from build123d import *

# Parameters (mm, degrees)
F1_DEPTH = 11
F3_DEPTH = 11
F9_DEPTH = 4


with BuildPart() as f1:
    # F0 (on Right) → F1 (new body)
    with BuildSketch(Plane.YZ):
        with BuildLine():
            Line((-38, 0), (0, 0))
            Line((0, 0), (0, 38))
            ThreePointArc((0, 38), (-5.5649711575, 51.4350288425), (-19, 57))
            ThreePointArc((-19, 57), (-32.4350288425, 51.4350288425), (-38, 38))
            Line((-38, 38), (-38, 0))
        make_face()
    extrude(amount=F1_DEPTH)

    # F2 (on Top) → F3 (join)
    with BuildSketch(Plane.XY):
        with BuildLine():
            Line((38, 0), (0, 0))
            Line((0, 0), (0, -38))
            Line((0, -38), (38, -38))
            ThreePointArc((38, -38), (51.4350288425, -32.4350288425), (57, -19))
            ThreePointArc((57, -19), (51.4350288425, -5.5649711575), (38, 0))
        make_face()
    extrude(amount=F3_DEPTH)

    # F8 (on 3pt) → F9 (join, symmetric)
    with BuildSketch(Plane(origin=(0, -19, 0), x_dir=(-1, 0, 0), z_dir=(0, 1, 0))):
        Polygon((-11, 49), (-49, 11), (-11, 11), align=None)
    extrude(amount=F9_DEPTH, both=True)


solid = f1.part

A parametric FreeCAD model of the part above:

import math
import FreeCAD as App
import Part
import Sketcher

V = App.Vector

doc = App.newDocument("Part")
params = doc.addObject("Spreadsheet::Sheet", "Params")
for row, (alias, value) in enumerate([
    ("sketch1_radius", "19 mm"),
    ("pad1_length", "11 mm"),
    ("sketch2_radius", "19 mm"),
    ("pad2_length", "11 mm"),
    ("sketch3_width", "38 mm"),
    ("pad3_length", "8 mm"),
], start=1):
    params.set(f"A{row}", alias)
    params.set(f"B{row}", "=" + value)
    params.setAlias(f"B{row}", alias)

body = doc.addObject("PartDesign::Body", "Body")

# Sketch on YZ plane
sketch1 = body.newObject("Sketcher::SketchObject", "Sketch")
sketch1.AttachmentSupport = (doc.getObject("YZ_Plane"), [""])
sketch1.MapMode = "FlatFace"
sketch1.addGeometry(Part.LineSegment(V(-38, 0, 0), V(0, 0, 0)), False)
sketch1.addGeometry(Part.LineSegment(V(0, 0, 0), V(0, 38, 0)), False)
sketch1.addGeometry(Part.ArcOfCircle(Part.Circle(V(-19, 38, 0), V(0, 0, 1), 19), math.radians(0), math.radians(90)), False)
sketch1.addGeometry(Part.ArcOfCircle(Part.Circle(V(-19, 38, 0), V(0, 0, 1), 19), math.radians(90), math.radians(180)), False)
sketch1.addGeometry(Part.LineSegment(V(-38, 38, 0), V(-38, 0, 0)), False)
sketch1.addConstraint(Sketcher.Constraint("Coincident", 0, 2, 1, 1))
sketch1.addConstraint(Sketcher.Constraint("Tangent", 1, 2, 2, 1))
sketch1.addConstraint(Sketcher.Constraint("Tangent", 2, 2, 3, 1))
sketch1.addConstraint(Sketcher.Constraint("Tangent", 3, 2, 4, 1))
sketch1.addConstraint(Sketcher.Constraint("Coincident", 4, 2, 0, 1))
sketch1.addConstraint(Sketcher.Constraint("Horizontal", 0))
sketch1.addConstraint(Sketcher.Constraint("Vertical", 1))
sketch1.addConstraint(Sketcher.Constraint("Vertical", 4))
sketch1.addConstraint(Sketcher.Constraint("Coincident", 0, 2, -1, 1))
sketch1.addConstraint(Sketcher.Constraint("Equal", 2, 3))
sketch1.addConstraint(Sketcher.Constraint("Vertical", 3, 3, 2, 2))
sketch1.addConstraint(Sketcher.Constraint("Equal", 0, 1))
sketch1.addConstraint(Sketcher.Constraint("Radius", 2, 19.0))
sketch1.setExpression("Constraints[12]", "Params.sketch1_radius")
pad1 = body.newObject("PartDesign::Pad", "Pad")
pad1.Profile = sketch1
pad1.setExpression("Length", "Params.pad1_length")

# Sketch on XY plane
sketch2 = body.newObject("Sketcher::SketchObject", "Sketch001")
sketch2.AttachmentSupport = (doc.getObject("XY_Plane"), [""])
sketch2.MapMode = "FlatFace"
sketch2.addGeometry(Part.LineSegment(V(38, 0, 0), V(0, 0, 0)), False)
sketch2.addGeometry(Part.LineSegment(V(0, 0, 0), V(0, -38, 0)), False)
sketch2.addGeometry(Part.LineSegment(V(0, -38, 0), V(38, -38, 0)), False)
sketch2.addGeometry(Part.ArcOfCircle(Part.Circle(V(38, -19, 0), V(0, 0, 1), 19), math.radians(-90), math.radians(0)), False)
sketch2.addGeometry(Part.ArcOfCircle(Part.Circle(V(38, -19, 0), V(0, 0, 1), 19), math.radians(0), math.radians(90)), False)
sketch2.addConstraint(Sketcher.Constraint("Coincident", 0, 2, 1, 1))
sketch2.addConstraint(Sketcher.Constraint("Coincident", 1, 2, 2, 1))
sketch2.addConstraint(Sketcher.Constraint("Tangent", 2, 2, 3, 1))
sketch2.addConstraint(Sketcher.Constraint("Tangent", 3, 2, 4, 1))
sketch2.addConstraint(Sketcher.Constraint("Tangent", 4, 2, 0, 1))
sketch2.addConstraint(Sketcher.Constraint("Horizontal", 0))
sketch2.addConstraint(Sketcher.Constraint("Vertical", 1))
sketch2.addConstraint(Sketcher.Constraint("Horizontal", 2))
sketch2.addConstraint(Sketcher.Constraint("Coincident", 0, 2, -1, 1))
sketch2.addConstraint(Sketcher.Constraint("Equal", 3, 4))
sketch2.addConstraint(Sketcher.Constraint("Horizontal", 4, 3, 3, 2))
sketch2.addConstraint(Sketcher.Constraint("Equal", 2, 1))
sketch2.addConstraint(Sketcher.Constraint("Radius", 3, 19.0))
sketch2.setExpression("Constraints[12]", "Params.sketch2_radius")
pad2 = body.newObject("PartDesign::Pad", "Pad001")
pad2.Profile = sketch2
pad2.setExpression("Length", "Params.pad2_length")

# Sketch on XZ plane
sketch3 = body.newObject("Sketcher::SketchObject", "Sketch002")
sketch3.AttachmentSupport = (doc.getObject("XZ_Plane"), [""])
sketch3.MapMode = "FlatFace"
sketch3.AttachmentOffset = App.Placement(V(0, 0, 19), App.Rotation())
sketch3.addGeometry(Part.LineSegment(V(11, 49, 0), V(49, 11, 0)), False)
sketch3.addGeometry(Part.LineSegment(V(49, 11, 0), V(11, 11, 0)), False)
sketch3.addGeometry(Part.LineSegment(V(11, 11, 0), V(11, 49, 0)), False)
sketch3.addConstraint(Sketcher.Constraint("Coincident", 0, 2, 1, 1))
sketch3.addConstraint(Sketcher.Constraint("Coincident", 1, 2, 2, 1))
sketch3.addConstraint(Sketcher.Constraint("Coincident", 2, 2, 0, 1))
sketch3.addConstraint(Sketcher.Constraint("Horizontal", 1))
sketch3.addConstraint(Sketcher.Constraint("Vertical", 2))
sketch3.addConstraint(Sketcher.Constraint("Equal", 1, 2))
sketch3.addConstraint(Sketcher.Constraint("DistanceX", 1, 2, 1, 1, 38.0))
sketch3.addConstraint(Sketcher.Constraint("DistanceX", -1, 1, 0, 2, 49.0))
sketch3.addConstraint(Sketcher.Constraint("DistanceY", -1, 1, 0, 2, 11.0))
sketch3.setExpression("Constraints[6]", "Params.sketch3_width")
pad3 = body.newObject("PartDesign::Pad", "Pad002")
pad3.Profile = sketch3
pad3.setExpression("Length", "Params.pad3_length")
pad3.Midplane = True

doc.recompute()
